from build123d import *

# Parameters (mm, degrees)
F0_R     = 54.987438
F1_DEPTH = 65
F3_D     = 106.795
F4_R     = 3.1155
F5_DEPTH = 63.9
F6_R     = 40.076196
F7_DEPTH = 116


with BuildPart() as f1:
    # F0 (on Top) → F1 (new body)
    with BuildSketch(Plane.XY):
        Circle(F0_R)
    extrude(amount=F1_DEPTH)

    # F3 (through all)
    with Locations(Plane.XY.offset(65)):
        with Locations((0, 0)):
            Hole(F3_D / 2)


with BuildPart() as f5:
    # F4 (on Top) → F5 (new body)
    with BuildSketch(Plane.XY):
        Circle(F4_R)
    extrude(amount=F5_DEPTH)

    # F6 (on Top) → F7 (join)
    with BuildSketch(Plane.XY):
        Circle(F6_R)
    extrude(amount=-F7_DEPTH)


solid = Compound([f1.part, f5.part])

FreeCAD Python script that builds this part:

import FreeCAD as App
import Part
import Sketcher

doc = App.newDocument("Part")
body = doc.addObject("PartDesign::Body", "Body")

sketch1 = body.newObject("Sketcher::SketchObject", "Sketch")
sketch1.AttachmentSupport = (doc.getObject("XY_Plane"), [""])
sketch1.MapMode = "FlatFace"
sketch1.addGeometry(Part.Circle(App.Vector(0, 0, 0), App.Vector(0, 0, 1), 54.987438), False)
sketch1.addConstraint([
    Sketcher.Constraint("Coincident", 0, 3, -1, 1),
    Sketcher.Constraint("Diameter", 0, 109.974876),
])
pad1 = body.newObject("PartDesign::Pad", "Pad")
pad1.Profile = sketch1
pad1.Length = 65

sketch2 = body.newObject("Sketcher::SketchObject", "Sketch001")
sketch2.AttachmentSupport = (doc.getObject("XY_Plane"), [""])
sketch2.MapMode = "FlatFace"
sketch2.AttachmentOffset = App.Placement(App.Vector(0, 0, 65), App.Rotation())
sketch2.addGeometry(Part.Circle(App.Vector(0, 0, 0), App.Vector(0, 0, 1), 53.3975), False)
sketch2.addConstraint([
    Sketcher.Constraint("Coincident", 0, 3, -1, 1),
    Sketcher.Constraint("Diameter", 0, 106.795),
])
doc.recompute()
hole = body.newObject("PartDesign::Hole", "Hole")
hole.Profile = sketch2
hole.ThreadType = "None"
hole.Diameter = 106.795
hole.DepthType = "ThroughAll"
body2 = doc.addObject("PartDesign::Body", "Body001")

sketch3 = body2.newObject("Sketcher::SketchObject", "Sketch002")
sketch3.AttachmentSupport = (doc.getObject("XY_Plane001"), [""])
sketch3.MapMode = "FlatFace"
sketch3.addGeometry(Part.Circle(App.Vector(0, 0, 0), App.Vector(0, 0, 1), 3.1155), False)
sketch3.addConstraint([
    Sketcher.Constraint("Coincident", 0, 3, -1, 1),
    Sketcher.Constraint("Diameter", 0, 6.231),
])
pad2 = body2.newObject("PartDesign::Pad", "Pad001")
pad2.Profile = sketch3
pad2.Length = 63.9

sketch4 = body2.newObject("Sketcher::SketchObject", "Sketch003")
sketch4.AttachmentSupport = (doc.getObject("XY_Plane001"), [""])
sketch4.MapMode = "FlatFace"
sketch4.addGeometry(Part.Circle(App.Vector(0, 0, 0), App.Vector(0, 0, 1), 40.076196), False)
sketch4.addConstraint([
    Sketcher.Constraint("Coincident", 0, 3, -1, 1),
    Sketcher.Constraint("Diameter", 0, 80.152392),
])
pad3 = body2.newObject("PartDesign::Pad", "Pad002")
pad3.Profile = sketch4
pad3.Length = 116
pad3.Reversed = True

doc.recompute()
